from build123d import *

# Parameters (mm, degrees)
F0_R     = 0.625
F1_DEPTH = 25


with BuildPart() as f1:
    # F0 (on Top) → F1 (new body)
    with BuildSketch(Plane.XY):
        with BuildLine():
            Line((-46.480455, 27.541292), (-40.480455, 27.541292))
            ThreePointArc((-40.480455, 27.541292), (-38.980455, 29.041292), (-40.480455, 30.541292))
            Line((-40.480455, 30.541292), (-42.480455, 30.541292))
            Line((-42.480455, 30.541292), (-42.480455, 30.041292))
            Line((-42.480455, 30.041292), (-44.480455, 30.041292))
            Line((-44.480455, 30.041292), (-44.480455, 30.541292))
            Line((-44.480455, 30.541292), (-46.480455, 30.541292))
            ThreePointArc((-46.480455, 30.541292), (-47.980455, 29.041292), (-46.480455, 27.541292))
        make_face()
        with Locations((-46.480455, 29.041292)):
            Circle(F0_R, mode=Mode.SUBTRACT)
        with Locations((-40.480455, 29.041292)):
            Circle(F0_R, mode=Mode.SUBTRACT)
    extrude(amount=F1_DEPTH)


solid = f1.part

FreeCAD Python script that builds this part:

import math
import FreeCAD as App
import Part
import Sketcher

doc = App.newDocument("Part")
params = doc.addObject("Spreadsheet::Sheet", "Params")
for row, (alias, value) in enumerate([
    ("sketch1_radius", "1.5 mm"),
    ("sketch1_diameter", "1.25 mm"),
    ("sketch1_width", "6 mm"),
    ("sketch1_height", "0.5 mm"),
    ("pad1_length", "25 mm"),
], start=1):
    params.set(f"A{row}", alias)
    params.set(f"B{row}", "=" + value)
    params.setAlias(f"B{row}", alias)

body = doc.addObject("PartDesign::Body", "Body")

# Sketch on XY plane
sketch1 = body.newObject("Sketcher::SketchObject", "Sketch")
sketch1.AttachmentSupport = (doc.getObject("XY_Plane"), [""])
sketch1.MapMode = "FlatFace"
sketch1.addGeometry([
    Part.LineSegment(App.Vector(-46.5, 27.5, 0), App.Vector(-40.5, 27.5, 0)),  # 0
    Part.ArcOfCircle(Part.Circle(App.Vector(-40.5, 29, 0), App.Vector(0, 0, 1), 1.5), math.radians(-90), math.radians(90)),  # 1
    Part.LineSegment(App.Vector(-40.5, 30.5, 0), App.Vector(-42.5, 30.5, 0)),  # 2
    Part.LineSegment(App.Vector(-42.5, 30.5, 0), App.Vector(-42.5, 30, 0)),  # 3
    Part.LineSegment(App.Vector(-42.5, 30, 0), App.Vector(-44.5, 30, 0)),  # 4
    Part.LineSegment(App.Vector(-44.5, 30, 0), App.Vector(-44.5, 30.5, 0)),  # 5
    Part.LineSegment(App.Vector(-44.5, 30.5, 0), App.Vector(-46.5, 30.5, 0)),  # 6
    Part.ArcOfCircle(Part.Circle(App.Vector(-46.5, 29, 0), App.Vector(0, 0, 1), 1.5), math.radians(90), math.radians(270)),  # 7
    Part.Circle(App.Vector(-46.5, 29, 0), App.Vector(0, 0, 1), 0.6),  # 8
    Part.Circle(App.Vector(-40.5, 29, 0), App.Vector(0, 0, 1), 0.6),  # 9
], False)
sketch1.addConstraint([
    Sketcher.Constraint("Tangent", 0, 2, 1, 1),
    Sketcher.Constraint("Tangent", 1, 2, 2, 1),
    Sketcher.Constraint("Coincident", 2, 2, 3, 1),
    Sketcher.Constraint("Coincident", 3, 2, 4, 1),
    Sketcher.Constraint("Coincident", 4, 2, 5, 1),
    Sketcher.Constraint("Coincident", 5, 2, 6, 1),
    Sketcher.Constraint("Tangent", 6, 2, 7, 1),
    Sketcher.Constraint("Tangent", 7, 2, 0, 1),
    Sketcher.Constraint("Horizontal", 0),
    Sketcher.Constraint("Horizontal", 2),
    Sketcher.Constraint("Vertical", 3),
    Sketcher.Constraint("Horizontal", 4),
    Sketcher.Constraint("Vertical", 5),
    Sketcher.Constraint("Horizontal", 6),
    Sketcher.Constraint("Coincident", 8, 3, 7, 3),
    Sketcher.Constraint("Coincident", 9, 3, 1, 3),
    Sketcher.Constraint("Equal", 1, 7),
    Sketcher.Constraint("Equal", 8, 9),
    Sketcher.Constraint("Equal", 2, 4),
    Sketcher.Constraint("Equal", 4, 6),
    Sketcher.Constraint("Radius", 1, 1.5),
    Sketcher.Constraint("Diameter", 8, 1.25),
    Sketcher.Constraint("DistanceX", 0, 1, 0, 2, 6.0),
    Sketcher.Constraint("DistanceY", 3, 2, 3, 1, 0.5),
    Sketcher.Constraint("DistanceY", -1, 1, 1, 3, 29.041292),
    Sketcher.Constraint("DistanceX", 1, 3, -1, 1, 40.480455),
])
sketch1.setExpression("Constraints[20]", "Params.sketch1_radius")
sketch1.setExpression("Constraints[21]", "Params.sketch1_diameter")
sketch1.setExpression("Constraints[22]", "Params.sketch1_width")
sketch1.setExpression("Constraints[23]", "Params.sketch1_height")
pad1 = body.newObject("PartDesign::Pad", "Pad")
pad1.Profile = sketch1
pad1.setExpression("Length", "Params.pad1_length")

doc.recompute()
